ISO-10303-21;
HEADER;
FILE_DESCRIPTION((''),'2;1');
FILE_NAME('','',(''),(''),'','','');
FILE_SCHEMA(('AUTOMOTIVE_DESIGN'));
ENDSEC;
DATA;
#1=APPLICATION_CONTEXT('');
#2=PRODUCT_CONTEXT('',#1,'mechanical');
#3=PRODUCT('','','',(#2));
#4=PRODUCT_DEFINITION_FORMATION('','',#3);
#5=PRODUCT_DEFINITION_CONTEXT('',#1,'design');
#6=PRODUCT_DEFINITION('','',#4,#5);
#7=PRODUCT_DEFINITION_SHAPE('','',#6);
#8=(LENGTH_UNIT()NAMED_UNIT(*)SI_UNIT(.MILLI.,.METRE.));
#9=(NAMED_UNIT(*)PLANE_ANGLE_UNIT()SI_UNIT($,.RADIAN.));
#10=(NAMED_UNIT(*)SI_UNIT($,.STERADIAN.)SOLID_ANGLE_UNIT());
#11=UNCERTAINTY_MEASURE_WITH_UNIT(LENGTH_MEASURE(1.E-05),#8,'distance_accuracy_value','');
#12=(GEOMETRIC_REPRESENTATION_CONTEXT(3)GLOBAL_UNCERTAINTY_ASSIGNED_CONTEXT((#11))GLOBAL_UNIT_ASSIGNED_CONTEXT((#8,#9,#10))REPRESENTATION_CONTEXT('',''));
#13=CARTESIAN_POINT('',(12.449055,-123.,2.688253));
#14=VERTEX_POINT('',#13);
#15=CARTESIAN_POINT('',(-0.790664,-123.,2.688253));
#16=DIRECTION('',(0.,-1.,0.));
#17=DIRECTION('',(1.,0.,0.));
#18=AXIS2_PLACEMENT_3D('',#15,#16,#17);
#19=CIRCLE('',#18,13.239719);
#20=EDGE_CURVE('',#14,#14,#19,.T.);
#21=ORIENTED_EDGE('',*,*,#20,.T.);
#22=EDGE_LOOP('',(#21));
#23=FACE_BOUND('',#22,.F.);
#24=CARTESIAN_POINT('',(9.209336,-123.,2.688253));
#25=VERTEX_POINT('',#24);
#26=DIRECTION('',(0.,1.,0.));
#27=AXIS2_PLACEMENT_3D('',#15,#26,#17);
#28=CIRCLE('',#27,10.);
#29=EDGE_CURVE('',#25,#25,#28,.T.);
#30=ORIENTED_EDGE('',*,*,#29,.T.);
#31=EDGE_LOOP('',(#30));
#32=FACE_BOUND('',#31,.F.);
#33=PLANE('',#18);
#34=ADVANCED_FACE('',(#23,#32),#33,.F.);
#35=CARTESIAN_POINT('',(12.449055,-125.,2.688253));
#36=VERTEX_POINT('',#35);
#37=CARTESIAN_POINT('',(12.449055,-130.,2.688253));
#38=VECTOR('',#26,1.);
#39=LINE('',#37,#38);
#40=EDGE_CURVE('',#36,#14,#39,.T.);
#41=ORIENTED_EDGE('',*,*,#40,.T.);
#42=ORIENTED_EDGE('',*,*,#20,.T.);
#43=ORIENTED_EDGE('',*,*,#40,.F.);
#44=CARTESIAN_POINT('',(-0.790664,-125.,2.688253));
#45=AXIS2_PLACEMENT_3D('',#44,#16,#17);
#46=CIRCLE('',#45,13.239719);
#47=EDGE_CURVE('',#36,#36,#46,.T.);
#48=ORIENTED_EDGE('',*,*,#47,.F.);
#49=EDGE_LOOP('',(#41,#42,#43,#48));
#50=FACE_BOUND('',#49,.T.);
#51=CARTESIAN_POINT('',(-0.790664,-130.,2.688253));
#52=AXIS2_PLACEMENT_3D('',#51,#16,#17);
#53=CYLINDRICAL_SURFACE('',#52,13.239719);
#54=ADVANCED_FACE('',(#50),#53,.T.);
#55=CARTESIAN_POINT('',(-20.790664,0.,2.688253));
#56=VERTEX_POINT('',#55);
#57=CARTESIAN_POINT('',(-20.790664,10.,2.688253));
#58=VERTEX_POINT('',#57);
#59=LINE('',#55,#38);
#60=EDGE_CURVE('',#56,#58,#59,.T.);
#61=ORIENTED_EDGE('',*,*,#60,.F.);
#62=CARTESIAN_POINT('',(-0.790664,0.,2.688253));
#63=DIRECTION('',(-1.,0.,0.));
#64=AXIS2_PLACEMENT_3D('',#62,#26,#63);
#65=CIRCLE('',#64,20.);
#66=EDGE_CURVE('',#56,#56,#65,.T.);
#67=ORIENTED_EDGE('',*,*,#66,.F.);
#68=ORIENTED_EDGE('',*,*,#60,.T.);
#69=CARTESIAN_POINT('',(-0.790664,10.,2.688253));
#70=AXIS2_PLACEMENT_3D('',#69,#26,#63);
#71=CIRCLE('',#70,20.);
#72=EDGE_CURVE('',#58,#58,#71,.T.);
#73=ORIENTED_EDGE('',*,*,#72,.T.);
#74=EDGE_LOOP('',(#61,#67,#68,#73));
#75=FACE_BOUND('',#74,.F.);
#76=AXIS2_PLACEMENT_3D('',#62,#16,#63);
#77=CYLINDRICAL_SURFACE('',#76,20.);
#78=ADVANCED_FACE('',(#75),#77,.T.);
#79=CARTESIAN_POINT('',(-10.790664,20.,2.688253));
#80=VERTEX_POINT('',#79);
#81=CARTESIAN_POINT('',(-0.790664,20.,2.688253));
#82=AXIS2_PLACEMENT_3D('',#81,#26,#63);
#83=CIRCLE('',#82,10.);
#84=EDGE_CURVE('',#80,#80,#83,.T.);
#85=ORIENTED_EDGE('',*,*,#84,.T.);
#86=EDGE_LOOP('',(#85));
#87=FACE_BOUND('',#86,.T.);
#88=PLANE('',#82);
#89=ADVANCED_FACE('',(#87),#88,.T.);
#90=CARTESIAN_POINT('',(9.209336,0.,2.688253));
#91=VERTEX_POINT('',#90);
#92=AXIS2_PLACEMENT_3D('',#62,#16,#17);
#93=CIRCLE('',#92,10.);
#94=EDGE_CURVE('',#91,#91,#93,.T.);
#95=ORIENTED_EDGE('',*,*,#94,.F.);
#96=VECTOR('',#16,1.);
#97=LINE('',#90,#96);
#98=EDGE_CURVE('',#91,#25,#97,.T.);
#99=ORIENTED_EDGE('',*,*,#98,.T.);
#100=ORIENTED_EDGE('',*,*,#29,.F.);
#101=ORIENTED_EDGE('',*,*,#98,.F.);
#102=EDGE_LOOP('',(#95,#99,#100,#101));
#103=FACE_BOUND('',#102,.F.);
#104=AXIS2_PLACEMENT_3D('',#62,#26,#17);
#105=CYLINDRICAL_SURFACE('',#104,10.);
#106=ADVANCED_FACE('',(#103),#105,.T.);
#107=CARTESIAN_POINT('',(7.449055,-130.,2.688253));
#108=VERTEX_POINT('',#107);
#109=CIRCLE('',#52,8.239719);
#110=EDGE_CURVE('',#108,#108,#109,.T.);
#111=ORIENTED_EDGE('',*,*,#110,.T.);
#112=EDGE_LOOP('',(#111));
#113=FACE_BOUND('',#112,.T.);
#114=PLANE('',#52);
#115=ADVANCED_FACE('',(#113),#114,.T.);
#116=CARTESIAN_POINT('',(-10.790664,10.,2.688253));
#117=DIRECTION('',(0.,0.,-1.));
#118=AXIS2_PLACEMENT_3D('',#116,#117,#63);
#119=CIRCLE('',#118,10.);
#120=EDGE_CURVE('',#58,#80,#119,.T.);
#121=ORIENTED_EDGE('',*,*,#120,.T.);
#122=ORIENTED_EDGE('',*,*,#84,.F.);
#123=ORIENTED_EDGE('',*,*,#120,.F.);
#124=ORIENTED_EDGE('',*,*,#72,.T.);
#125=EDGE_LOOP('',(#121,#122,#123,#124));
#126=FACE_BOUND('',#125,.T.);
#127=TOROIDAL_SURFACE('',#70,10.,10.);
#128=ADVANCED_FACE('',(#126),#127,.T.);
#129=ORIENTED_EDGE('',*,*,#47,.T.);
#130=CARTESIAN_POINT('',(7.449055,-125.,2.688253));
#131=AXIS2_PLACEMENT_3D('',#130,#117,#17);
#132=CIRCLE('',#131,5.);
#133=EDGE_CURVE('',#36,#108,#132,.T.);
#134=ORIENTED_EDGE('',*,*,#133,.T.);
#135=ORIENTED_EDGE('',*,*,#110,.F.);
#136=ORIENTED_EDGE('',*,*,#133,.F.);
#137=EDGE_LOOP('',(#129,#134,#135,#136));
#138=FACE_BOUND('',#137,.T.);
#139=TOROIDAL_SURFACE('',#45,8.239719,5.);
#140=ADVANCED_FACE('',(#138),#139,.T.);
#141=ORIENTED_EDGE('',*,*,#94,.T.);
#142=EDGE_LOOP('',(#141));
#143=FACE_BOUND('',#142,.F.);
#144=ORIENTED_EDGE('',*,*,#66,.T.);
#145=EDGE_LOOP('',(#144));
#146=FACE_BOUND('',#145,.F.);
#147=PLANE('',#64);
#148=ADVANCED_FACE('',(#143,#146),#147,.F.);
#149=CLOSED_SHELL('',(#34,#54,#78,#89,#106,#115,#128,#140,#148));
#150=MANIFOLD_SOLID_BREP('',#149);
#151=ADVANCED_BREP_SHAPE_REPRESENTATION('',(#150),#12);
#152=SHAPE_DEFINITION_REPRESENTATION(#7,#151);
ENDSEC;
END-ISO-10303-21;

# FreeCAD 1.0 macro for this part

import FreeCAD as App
import Part
import Sketcher

V = App.Vector


def edges_at(feature, points):
    """Names of the edges that pass closest to the given points."""
    edges = feature.Shape.Edges
    near = lambda p: min(range(len(edges)), key=lambda i: edges[i].distToShape(Part.Vertex(*p))[0])
    return sorted({f"Edge{near(p) + 1}" for p in points})

doc = App.newDocument("Part")
params = doc.addObject("Spreadsheet::Sheet", "Params")
for row, (alias, value) in enumerate([
    ("sketch1_diameter", "20 mm"),
    ("pad1_length", "130 mm"),
    ("sketch2_diameter", "40 mm"),
    ("pad2_length", "20 mm"),
    ("fillet_radius", "10 mm"),
    ("pad3_length", "7 mm"),
    ("fillet2_radius", "5 mm"),
], start=1):
    params.set(f"A{row}", alias)
    params.set(f"B{row}", "=" + value)
    params.setAlias(f"B{row}", alias)

body = doc.addObject("PartDesign::Body", "Body")

# Sketch on XZ plane
sketch1 = body.newObject("Sketcher::SketchObject", "Sketch")
sketch1.AttachmentSupport = (doc.getObject("XZ_Plane"), [""])
sketch1.MapMode = "FlatFace"
sketch1.addGeometry(Part.Circle(V(-1, 3, 0), V(0, 0, 1), 10), False)
sketch1.addConstraint([
    Sketcher.Constraint("Diameter", 0, 20.0),
    Sketcher.Constraint("DistanceX", 0, 3, -1, 1, 0.790664),
    Sketcher.Constraint("DistanceY", -1, 1, 0, 3, 2.688253),
])
sketch1.setExpression("Constraints[0]", "Params.sketch1_diameter")
pad1 = body.newObject("PartDesign::Pad", "Pad")
pad1.Profile = sketch1
pad1.setExpression("Length", "Params.pad1_length")

# Sketch on XZ plane
sketch2 = body.newObject("Sketcher::SketchObject", "Sketch001")
sketch2.AttachmentSupport = (doc.getObject("XZ_Plane"), [""])
sketch2.MapMode = "FlatFace"
sketch2.addGeometry(Part.Circle(V(-1, 3, 0), V(0, 0, 1), 20), False)
sketch2.addConstraint([
    Sketcher.Constraint("Diameter", 0, 40.0),
    Sketcher.Constraint("DistanceX", 0, 3, -1, 1, 0.790664),
    Sketcher.Constraint("DistanceY", -1, 1, 0, 3, 2.688253),
])
sketch2.setExpression("Constraints[0]", "Params.sketch2_diameter")
pad2 = body.newObject("PartDesign::Pad", "Pad001")
pad2.Profile = sketch2
pad2.setExpression("Length", "Params.pad2_length")
pad2.Reversed = True
doc.recompute()

fillet = body.newObject("PartDesign::Fillet", "Fillet")
fillet.Base = (pad2, edges_at(pad2, [(19.209, 20, 2.688)]))
fillet.setExpression("Radius", "Params.fillet_radius")

# Sketch on XZ plane
sketch3 = body.newObject("Sketcher::SketchObject", "Sketch002")
sketch3.AttachmentSupport = (doc.getObject("XZ_Plane"), [""])
sketch3.MapMode = "FlatFace"
sketch3.AttachmentOffset = App.Placement(V(0, 0, 130), App.Rotation())
sketch3.addGeometry(Part.Circle(V(-1, 3, 0), V(0, 0, 1), 13), False)
sketch3.addConstraint([
    Sketcher.Constraint("Diameter", 0, 26.479438),
    Sketcher.Constraint("DistanceX", 0, 3, -1, 1, 0.790664),
    Sketcher.Constraint("DistanceY", -1, 1, 0, 3, 2.688253),
])
pad3 = body.newObject("PartDesign::Pad", "Pad002")
pad3.Profile = sketch3
pad3.setExpression("Length", "Params.pad3_length")
pad3.Reversed = True
doc.recompute()

fillet2 = body.newObject("PartDesign::Fillet", "Fillet001")
fillet2.Base = (pad3, edges_at(pad3, [(-14.03, -130, 2.688)]))
fillet2.setExpression("Radius", "Params.fillet2_radius")

doc.recompute()
